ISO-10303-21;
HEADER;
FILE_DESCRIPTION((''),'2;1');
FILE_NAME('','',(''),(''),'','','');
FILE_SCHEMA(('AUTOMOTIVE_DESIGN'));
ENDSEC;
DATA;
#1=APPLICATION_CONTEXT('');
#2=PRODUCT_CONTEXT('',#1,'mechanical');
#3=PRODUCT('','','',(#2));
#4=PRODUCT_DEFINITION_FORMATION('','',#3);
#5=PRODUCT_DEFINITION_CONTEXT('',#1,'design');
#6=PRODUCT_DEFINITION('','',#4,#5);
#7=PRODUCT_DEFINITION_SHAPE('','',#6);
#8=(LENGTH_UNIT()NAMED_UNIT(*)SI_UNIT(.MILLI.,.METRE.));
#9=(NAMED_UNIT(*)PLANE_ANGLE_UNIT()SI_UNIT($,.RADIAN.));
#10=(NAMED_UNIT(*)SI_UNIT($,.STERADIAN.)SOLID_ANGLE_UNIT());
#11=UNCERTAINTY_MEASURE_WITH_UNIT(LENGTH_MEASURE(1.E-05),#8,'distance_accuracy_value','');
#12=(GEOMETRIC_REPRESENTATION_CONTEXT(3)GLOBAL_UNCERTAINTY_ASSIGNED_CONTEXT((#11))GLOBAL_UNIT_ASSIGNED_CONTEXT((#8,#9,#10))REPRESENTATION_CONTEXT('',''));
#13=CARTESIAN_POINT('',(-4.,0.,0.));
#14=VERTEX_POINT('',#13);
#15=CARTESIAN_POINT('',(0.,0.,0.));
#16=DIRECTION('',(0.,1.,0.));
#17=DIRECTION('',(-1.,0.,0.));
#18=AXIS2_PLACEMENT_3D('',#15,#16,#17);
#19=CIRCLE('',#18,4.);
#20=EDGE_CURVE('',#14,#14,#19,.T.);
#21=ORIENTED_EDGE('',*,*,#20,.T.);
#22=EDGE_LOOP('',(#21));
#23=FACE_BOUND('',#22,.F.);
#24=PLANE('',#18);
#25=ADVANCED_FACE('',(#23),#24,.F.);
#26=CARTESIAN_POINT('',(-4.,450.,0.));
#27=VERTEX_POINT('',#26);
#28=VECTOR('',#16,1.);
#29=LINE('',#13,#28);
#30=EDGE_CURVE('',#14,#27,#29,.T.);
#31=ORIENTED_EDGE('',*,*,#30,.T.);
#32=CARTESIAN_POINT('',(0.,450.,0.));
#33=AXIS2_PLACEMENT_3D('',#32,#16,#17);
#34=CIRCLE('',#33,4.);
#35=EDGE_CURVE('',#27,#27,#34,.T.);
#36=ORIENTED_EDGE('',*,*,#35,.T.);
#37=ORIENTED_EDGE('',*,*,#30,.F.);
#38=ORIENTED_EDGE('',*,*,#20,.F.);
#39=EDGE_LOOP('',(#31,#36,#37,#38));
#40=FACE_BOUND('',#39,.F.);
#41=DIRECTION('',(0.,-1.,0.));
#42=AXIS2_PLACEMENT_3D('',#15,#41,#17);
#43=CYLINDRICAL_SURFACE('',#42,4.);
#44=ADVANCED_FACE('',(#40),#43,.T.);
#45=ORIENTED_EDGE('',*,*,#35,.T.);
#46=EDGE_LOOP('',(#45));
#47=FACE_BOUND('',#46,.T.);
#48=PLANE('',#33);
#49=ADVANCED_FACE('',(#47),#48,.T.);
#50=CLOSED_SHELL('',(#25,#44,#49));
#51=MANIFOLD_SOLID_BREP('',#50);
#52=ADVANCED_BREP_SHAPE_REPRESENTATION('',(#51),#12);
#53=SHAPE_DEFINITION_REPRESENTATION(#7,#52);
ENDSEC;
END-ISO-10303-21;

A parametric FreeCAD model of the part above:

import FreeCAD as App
import Part
import Sketcher

V = App.Vector
Q = App.Units.Quantity

doc = App.newDocument("Part")
params = doc.addObject("Spreadsheet::Sheet", "Params")
for row, (alias, value) in enumerate([
    ("sketch1_diameter", "8 mm"),
    ("pad1_length", "450 mm"),
], start=1):
    params.set(f"A{row}", alias)
    params.set(f"B{row}", "=" + value)
    params.setAlias(f"B{row}", alias)

body = doc.addObject("PartDesign::Body", "Body")

# Sketch on XZ plane
sketch1 = body.newObject("Sketcher::SketchObject", "Sketch")
sketch1.AttachmentSupport = (doc.getObject("XZ_Plane"), [""])
sketch1.MapMode = "FlatFace"
sketch1.addGeometry(Part.Circle(V(0, 0, 0), V(0, 0, 1), 4), False)
sketch1.addConstraint([
    Sketcher.Constraint("Coincident", 0, 3, -1, 1),
    Sketcher.Constraint("Diameter", 0, Q("8 mm")),
])
sketch1.setExpression("Constraints[1]", "Params.sketch1_diameter")
pad1 = body.newObject("PartDesign::Pad", "Pad")
pad1.Profile = sketch1
pad1.setExpression("Length", "Params.pad1_length")
pad1.Reversed = True

doc.recompute()
